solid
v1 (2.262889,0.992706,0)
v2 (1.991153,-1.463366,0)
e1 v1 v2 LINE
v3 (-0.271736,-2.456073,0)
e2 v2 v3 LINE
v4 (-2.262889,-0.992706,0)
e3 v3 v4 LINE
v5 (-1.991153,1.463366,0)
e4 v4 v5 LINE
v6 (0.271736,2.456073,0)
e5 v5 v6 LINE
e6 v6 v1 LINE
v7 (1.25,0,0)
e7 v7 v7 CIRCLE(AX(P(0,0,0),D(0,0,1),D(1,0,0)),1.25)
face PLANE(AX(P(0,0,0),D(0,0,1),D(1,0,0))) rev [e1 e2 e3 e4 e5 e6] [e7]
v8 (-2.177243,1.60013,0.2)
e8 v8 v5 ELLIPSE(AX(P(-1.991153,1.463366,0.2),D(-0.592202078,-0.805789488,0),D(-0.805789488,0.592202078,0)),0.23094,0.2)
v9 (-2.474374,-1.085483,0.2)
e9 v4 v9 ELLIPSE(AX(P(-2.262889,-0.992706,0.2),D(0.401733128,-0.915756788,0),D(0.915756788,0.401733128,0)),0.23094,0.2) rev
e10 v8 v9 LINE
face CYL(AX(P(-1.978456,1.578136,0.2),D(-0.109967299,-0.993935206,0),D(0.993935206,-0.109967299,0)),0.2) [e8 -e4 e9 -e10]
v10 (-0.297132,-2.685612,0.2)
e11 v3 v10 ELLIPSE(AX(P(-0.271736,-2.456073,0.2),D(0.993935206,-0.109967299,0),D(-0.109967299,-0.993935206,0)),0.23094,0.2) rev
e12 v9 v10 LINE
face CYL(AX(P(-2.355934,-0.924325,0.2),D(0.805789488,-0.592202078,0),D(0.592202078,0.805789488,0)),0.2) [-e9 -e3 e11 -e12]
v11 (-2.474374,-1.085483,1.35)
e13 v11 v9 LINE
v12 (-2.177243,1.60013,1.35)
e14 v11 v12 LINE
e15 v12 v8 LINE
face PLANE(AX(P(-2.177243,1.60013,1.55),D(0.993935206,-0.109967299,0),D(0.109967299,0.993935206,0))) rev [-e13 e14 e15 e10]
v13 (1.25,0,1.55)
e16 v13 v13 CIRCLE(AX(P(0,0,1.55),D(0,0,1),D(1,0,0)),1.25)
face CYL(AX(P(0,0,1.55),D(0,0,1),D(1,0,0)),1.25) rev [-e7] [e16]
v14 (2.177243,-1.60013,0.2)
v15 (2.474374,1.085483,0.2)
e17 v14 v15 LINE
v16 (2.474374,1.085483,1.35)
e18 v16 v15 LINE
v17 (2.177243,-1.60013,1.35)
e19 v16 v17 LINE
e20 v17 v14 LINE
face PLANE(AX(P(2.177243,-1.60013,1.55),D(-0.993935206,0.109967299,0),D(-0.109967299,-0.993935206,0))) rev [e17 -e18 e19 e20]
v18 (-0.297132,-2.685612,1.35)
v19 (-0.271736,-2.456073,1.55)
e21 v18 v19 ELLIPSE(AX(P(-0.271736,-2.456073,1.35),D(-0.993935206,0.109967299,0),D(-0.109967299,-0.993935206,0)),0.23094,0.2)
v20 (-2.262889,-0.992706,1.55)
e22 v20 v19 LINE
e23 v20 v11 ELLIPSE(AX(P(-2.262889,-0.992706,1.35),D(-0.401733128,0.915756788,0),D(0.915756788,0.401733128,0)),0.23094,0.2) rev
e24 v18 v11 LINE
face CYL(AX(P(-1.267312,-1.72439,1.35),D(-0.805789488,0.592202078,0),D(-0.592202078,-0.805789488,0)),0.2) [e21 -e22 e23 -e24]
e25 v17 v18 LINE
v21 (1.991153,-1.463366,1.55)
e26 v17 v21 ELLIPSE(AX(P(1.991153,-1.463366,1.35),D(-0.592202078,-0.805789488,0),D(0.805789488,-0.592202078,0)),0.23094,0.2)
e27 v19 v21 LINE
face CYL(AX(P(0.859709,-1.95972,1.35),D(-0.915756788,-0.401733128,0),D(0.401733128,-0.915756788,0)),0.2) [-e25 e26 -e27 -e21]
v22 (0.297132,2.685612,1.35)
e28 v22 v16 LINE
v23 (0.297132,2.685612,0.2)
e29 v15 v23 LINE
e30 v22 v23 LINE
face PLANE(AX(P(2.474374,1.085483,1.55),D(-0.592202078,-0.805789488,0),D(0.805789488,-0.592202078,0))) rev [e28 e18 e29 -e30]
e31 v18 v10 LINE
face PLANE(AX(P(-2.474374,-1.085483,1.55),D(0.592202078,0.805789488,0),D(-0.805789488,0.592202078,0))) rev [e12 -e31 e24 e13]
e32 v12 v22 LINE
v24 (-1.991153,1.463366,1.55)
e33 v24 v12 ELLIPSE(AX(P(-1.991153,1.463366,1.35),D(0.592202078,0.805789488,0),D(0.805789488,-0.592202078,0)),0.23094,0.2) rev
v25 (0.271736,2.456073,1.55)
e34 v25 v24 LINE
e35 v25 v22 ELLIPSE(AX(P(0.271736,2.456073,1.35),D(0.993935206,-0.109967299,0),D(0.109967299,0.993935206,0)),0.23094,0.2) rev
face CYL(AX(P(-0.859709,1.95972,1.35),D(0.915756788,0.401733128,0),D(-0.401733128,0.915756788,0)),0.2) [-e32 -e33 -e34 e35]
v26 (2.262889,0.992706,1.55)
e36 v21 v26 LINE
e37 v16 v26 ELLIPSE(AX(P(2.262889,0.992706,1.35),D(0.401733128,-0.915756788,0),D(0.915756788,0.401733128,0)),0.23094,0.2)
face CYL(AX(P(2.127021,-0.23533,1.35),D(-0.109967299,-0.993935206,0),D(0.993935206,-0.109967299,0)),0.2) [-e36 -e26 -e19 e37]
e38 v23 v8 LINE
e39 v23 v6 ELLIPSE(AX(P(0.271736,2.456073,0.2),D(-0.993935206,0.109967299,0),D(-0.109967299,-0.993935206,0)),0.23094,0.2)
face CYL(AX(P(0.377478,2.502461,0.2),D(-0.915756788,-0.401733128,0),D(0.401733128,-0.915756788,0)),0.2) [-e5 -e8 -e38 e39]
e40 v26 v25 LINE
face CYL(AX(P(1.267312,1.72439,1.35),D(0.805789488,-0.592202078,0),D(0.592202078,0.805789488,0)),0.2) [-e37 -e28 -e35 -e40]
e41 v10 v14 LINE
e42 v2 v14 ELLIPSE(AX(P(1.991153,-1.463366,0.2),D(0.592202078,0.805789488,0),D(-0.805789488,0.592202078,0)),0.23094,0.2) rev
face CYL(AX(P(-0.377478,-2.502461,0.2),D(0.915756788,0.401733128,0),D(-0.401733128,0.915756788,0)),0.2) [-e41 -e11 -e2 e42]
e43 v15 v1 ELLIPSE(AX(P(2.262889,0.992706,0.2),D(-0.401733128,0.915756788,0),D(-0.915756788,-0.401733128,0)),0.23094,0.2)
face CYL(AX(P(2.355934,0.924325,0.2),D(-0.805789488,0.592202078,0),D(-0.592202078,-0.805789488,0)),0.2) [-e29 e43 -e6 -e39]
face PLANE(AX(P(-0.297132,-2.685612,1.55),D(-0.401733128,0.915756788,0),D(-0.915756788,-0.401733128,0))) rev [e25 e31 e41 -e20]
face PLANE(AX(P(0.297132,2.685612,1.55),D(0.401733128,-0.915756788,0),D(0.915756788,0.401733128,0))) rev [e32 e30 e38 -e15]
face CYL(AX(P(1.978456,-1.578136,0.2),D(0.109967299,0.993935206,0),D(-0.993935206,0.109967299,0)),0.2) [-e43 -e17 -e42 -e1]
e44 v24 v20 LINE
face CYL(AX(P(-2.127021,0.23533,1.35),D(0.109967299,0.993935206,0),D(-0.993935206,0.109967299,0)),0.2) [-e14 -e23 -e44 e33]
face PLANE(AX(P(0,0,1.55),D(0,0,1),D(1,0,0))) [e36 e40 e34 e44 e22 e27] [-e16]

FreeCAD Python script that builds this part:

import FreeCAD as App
import Part
import Sketcher
from FreeCAD import Vector
Q = App.Units.Quantity


def edges_at(feature, points):
    """Names of the edges that pass closest to the given points."""
    edges = feature.Shape.Edges
    near = lambda p: min(range(len(edges)), key=lambda i: edges[i].distToShape(Part.Vertex(*p))[0])
    return sorted({f"Edge{near(p) + 1}" for p in points})

doc = App.newDocument("Part")
body = doc.addObject("PartDesign::Body", "Body")

# Sketch on XY plane
sketch1 = doc.addObject("Sketcher::SketchObject", "Sketch")
body.addObject(sketch1)
sketch1.AttachmentSupport = (doc.XY_Plane, [""])
sketch1.MapMode = "FlatFace"
sketch1.addGeometry(Part.LineSegment(Vector(0.297132, 2.685612, 0), Vector(-2.177243, 1.60013, 0)), False)
sketch1.addGeometry(Part.LineSegment(Vector(-2.177243, 1.60013, 0), Vector(-2.474374, -1.085483, 0)), False)
sketch1.addGeometry(Part.LineSegment(Vector(-2.474374, -1.085483, 0), Vector(-0.297132, -2.685612, 0)), False)
sketch1.addGeometry(Part.LineSegment(Vector(-0.297132, -2.685612, 0), Vector(2.177243, -1.60013, 0)), False)
sketch1.addGeometry(Part.LineSegment(Vector(2.177243, -1.60013, 0), Vector(2.474374, 1.085483, 0)), False)
sketch1.addGeometry(Part.LineSegment(Vector(2.474374, 1.085483, 0), Vector(0.297132, 2.685612, 0)), False)
sketch1.addConstraint(Sketcher.Constraint("Coincident", 0, 2, 1, 1))
sketch1.addConstraint(Sketcher.Constraint("Coincident", 1, 2, 2, 1))
sketch1.addConstraint(Sketcher.Constraint("Coincident", 2, 2, 3, 1))
sketch1.addConstraint(Sketcher.Constraint("Coincident", 3, 2, 4, 1))
sketch1.addConstraint(Sketcher.Constraint("Coincident", 4, 2, 5, 1))
sketch1.addConstraint(Sketcher.Constraint("Coincident", 5, 2, 0, 1))
sketch1.addConstraint(Sketcher.Constraint("Symmetric", 0, 2, 3, 2, -1, 1))
sketch1.addConstraint(Sketcher.Constraint("Symmetric", 1, 2, 4, 2, -1, 1))
sketch1.addConstraint(Sketcher.Constraint("Symmetric", 2, 2, 5, 2, -1, 1))
sketch1.addConstraint(Sketcher.Constraint("Equal", 0, 1))
sketch1.addConstraint(Sketcher.Constraint("Equal", 1, 2))
sketch1.addConstraint(Sketcher.Constraint("Distance", 0, Q("2.701999 mm")))
sketch1.addConstraint(Sketcher.Constraint("DistanceY", -1, 1, 0, 2, Q("1.60013 mm")))
sketch1.addConstraint(Sketcher.Constraint("DistanceX", 2, 2, -1, 1, Q("0.297132 mm")))
sketch1.addConstraint(Sketcher.Constraint("DistanceX", 1, 2, 0, 2, Q("0.297132 mm")))
pad1 = doc.addObject("PartDesign::Pad", "Pad")
body.addObject(pad1)
pad1.Profile = sketch1
pad1.Length = 1.55
doc.recompute()

fillet = doc.addObject("PartDesign::Fillet", "Fillet")
body.addObject(fillet)
fillet.Base = (pad1, edges_at(pad1, [
    (-2.326, 0.257, 1.55),
    (-1.386, -1.886, 1.55),
    (0.94, -2.143, 1.55),
    (2.326, -0.257, 1.55),
    (1.386, 1.886, 1.55),
    (2.326, -0.257, 0),
    (0.94, -2.143, 0),
    (-1.386, -1.886, 0),
    (-0.94, 2.143, 1.55),
    (-2.326, 0.257, 0),
    (-0.94, 2.143, 0),
    (1.386, 1.886, 0),
]))
fillet.Radius = 0.2

# Sketch on XY plane
sketch2 = doc.addObject("Sketcher::SketchObject", "Sketch001")
body.addObject(sketch2)
sketch2.AttachmentSupport = (doc.XY_Plane, [""])
sketch2.MapMode = "FlatFace"
sketch2.AttachmentOffset = App.Placement(Vector(0, 0, 1.55), App.Rotation())
sketch2.addGeometry(Part.Circle(Vector(0, 0, 0), Vector(0, 0, 1), 1.25), False)
sketch2.addConstraint(Sketcher.Constraint("Coincident", 0, 3, -1, 1))
sketch2.addConstraint(Sketcher.Constraint("Diameter", 0, Q("2.5 mm")))
doc.recompute()
hole = doc.addObject("PartDesign::Hole", "Hole")
body.addObject(hole)
hole.Profile = sketch2
hole.ThreadType = "None"
hole.Diameter = 2.5
hole.DepthType = "ThroughAll"

doc.recompute()
